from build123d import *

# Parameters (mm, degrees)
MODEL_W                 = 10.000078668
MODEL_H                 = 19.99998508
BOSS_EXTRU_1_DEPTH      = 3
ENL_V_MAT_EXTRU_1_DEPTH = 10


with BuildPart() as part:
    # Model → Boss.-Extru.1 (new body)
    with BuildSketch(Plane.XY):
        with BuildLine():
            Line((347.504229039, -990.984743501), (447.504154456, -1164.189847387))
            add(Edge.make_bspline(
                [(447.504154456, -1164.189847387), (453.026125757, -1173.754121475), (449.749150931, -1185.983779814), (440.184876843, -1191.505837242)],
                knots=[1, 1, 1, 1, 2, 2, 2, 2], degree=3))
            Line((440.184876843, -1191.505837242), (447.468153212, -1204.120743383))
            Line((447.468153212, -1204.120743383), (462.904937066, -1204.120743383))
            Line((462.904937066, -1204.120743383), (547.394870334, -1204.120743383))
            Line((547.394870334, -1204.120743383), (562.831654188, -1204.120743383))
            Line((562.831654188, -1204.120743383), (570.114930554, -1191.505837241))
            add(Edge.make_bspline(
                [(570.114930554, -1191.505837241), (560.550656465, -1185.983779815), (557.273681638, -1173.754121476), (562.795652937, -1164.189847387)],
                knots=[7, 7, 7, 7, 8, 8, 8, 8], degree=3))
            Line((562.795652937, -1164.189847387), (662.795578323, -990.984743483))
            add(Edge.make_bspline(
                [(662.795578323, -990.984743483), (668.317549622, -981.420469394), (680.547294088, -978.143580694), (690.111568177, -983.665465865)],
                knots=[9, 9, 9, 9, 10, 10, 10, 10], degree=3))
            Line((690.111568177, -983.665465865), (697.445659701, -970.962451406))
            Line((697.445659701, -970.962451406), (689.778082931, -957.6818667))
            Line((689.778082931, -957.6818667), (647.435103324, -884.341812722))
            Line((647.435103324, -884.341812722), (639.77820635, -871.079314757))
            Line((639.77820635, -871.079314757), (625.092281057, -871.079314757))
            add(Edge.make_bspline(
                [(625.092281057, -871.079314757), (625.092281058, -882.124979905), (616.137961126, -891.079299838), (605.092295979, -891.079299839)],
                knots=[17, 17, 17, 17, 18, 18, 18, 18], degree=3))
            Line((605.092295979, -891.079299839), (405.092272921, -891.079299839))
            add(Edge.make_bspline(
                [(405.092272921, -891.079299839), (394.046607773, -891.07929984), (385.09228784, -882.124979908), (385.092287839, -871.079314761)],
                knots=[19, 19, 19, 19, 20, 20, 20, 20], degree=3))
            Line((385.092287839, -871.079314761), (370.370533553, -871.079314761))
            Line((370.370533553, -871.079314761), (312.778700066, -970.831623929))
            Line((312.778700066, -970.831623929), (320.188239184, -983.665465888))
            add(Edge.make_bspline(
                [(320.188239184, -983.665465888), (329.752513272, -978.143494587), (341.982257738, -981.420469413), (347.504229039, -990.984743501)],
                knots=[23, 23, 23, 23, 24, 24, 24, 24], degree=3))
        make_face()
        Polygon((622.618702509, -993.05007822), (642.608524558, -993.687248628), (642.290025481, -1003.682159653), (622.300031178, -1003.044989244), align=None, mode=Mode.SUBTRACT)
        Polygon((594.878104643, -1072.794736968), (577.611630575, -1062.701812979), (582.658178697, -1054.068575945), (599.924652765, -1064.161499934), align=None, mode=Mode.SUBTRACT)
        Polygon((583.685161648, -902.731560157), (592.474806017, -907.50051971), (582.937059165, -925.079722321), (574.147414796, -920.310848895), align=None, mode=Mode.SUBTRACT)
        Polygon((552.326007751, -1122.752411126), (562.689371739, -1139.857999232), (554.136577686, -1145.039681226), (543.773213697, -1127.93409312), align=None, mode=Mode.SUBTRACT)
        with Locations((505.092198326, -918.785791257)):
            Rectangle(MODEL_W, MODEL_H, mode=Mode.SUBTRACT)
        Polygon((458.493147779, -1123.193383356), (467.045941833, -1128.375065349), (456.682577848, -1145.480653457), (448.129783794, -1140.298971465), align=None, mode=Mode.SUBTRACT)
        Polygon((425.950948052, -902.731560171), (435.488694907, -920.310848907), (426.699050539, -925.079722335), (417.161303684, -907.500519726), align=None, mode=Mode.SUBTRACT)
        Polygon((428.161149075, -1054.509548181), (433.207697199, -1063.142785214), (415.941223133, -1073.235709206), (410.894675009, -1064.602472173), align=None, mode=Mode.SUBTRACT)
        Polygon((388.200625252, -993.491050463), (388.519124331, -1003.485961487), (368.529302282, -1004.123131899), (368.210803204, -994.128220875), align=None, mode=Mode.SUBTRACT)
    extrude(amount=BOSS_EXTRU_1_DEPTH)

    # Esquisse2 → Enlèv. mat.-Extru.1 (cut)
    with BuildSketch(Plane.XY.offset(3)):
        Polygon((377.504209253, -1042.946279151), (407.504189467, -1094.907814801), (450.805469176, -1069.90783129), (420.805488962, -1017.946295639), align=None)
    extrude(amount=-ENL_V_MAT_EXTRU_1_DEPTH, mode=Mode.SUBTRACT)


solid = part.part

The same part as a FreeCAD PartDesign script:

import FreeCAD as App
import Part
import Sketcher

V = App.Vector
Q = App.Units.Quantity

doc = App.newDocument("Part")
body = doc.addObject("PartDesign::Body", "Body")

# Sketch on XY plane
sketch1 = body.newObject("Sketcher::SketchObject", "Sketch")
sketch1.AttachmentSupport = (doc.getObject("XY_Plane"), [""])
sketch1.MapMode = "FlatFace"
sketch1.addGeometry([
    Part.LineSegment(V(347.504229, -990.984744, 0), V(447.504154, -1164.189847, 0)),  # 0
    Part.BSplineCurve([V(447.504154, -1164.189847, 0), V(453.026126, -1173.754121, 0), V(449.749151, -1185.98378, 0), V(440.184877, -1191.505837, 0)], [4, 4], [1, 2], False, 3, [1, 1, 1, 1], False),  # 1
    Part.LineSegment(V(440.184877, -1191.505837, 0), V(447.468153, -1204.120743, 0)),  # 2
    Part.LineSegment(V(447.468153, -1204.120743, 0), V(562.831654, -1204.120743, 0)),  # 3
    Part.LineSegment(V(562.831654, -1204.120743, 0), V(570.114931, -1191.505837, 0)),  # 4
    Part.BSplineCurve([V(570.114931, -1191.505837, 0), V(560.550656, -1185.98378, 0), V(557.273682, -1173.754121, 0), V(562.795653, -1164.189847, 0)], [4, 4], [7, 8], False, 3, [1, 1, 1, 1], False),  # 5
    Part.LineSegment(V(562.795653, -1164.189847, 0), V(662.795578, -990.984743, 0)),  # 6
    Part.BSplineCurve([V(662.795578, -990.984743, 0), V(668.31755, -981.420469, 0), V(680.547294, -978.143581, 0), V(690.111568, -983.665466, 0)], [4, 4], [9, 10], False, 3, [1, 1, 1, 1], False),  # 7
    Part.LineSegment(V(690.111568, -983.665466, 0), V(697.44566, -970.962451, 0)),  # 8
    Part.LineSegment(V(697.44566, -970.962451, 0), V(689.778083, -957.681867, 0)),  # 9
    Part.LineSegment(V(689.778083, -957.681867, 0), V(647.435103, -884.341813, 0)),  # 10
    Part.LineSegment(V(647.435103, -884.341813, 0), V(639.778206, -871.079315, 0)),  # 11
    Part.LineSegment(V(639.778206, -871.079315, 0), V(625.092281, -871.079315, 0)),  # 12
    Part.BSplineCurve([V(625.092281, -871.079315, 0), V(625.092281, -882.12498, 0), V(616.137961, -891.0793, 0), V(605.092296, -891.0793, 0)], [4, 4], [17, 18], False, 3, [1, 1, 1, 1], False),  # 13
    Part.LineSegment(V(605.092296, -891.0793, 0), V(405.092273, -891.0793, 0)),  # 14
    Part.BSplineCurve([V(405.092273, -891.0793, 0), V(394.046608, -891.0793, 0), V(385.092288, -882.12498, 0), V(385.092288, -871.079315, 0)], [4, 4], [19, 20], False, 3, [1, 1, 1, 1], False),  # 15
    Part.LineSegment(V(385.092288, -871.079315, 0), V(370.370534, -871.079315, 0)),  # 16
    Part.LineSegment(V(370.370534, -871.079315, 0), V(312.7787, -970.831624, 0)),  # 17
    Part.LineSegment(V(312.7787, -970.831624, 0), V(320.188239, -983.665466, 0)),  # 18
    Part.BSplineCurve([V(320.188239, -983.665466, 0), V(329.752513, -978.143495, 0), V(341.982258, -981.420469, 0), V(347.504229, -990.984744, 0)], [4, 4], [23, 24], False, 3, [1, 1, 1, 1], False),  # 19
    Part.LineSegment(V(448.129784, -1140.298971, 0), V(458.493148, -1123.193383, 0)),  # 20
    Part.LineSegment(V(458.493148, -1123.193383, 0), V(467.045942, -1128.375065, 0)),  # 21
    Part.LineSegment(V(467.045942, -1128.375065, 0), V(456.682578, -1145.480653, 0)),  # 22
    Part.LineSegment(V(456.682578, -1145.480653, 0), V(448.129784, -1140.298971, 0)),  # 23
    Part.LineSegment(V(410.894675, -1064.602472, 0), V(428.161149, -1054.509548, 0)),  # 24
    Part.LineSegment(V(428.161149, -1054.509548, 0), V(433.207697, -1063.142785, 0)),  # 25
    Part.LineSegment(V(433.207697, -1063.142785, 0), V(415.941223, -1073.235709, 0)),  # 26
    Part.LineSegment(V(415.941223, -1073.235709, 0), V(410.894675, -1064.602472, 0)),  # 27
    Part.LineSegment(V(543.773214, -1127.934093, 0), V(552.326008, -1122.752411, 0)),  # 28
    Part.LineSegment(V(552.326008, -1122.752411, 0), V(562.689372, -1139.857999, 0)),  # 29
    Part.LineSegment(V(562.689372, -1139.857999, 0), V(554.136578, -1145.039681, 0)),  # 30
    Part.LineSegment(V(554.136578, -1145.039681, 0), V(543.773214, -1127.934093, 0)),  # 31
    Part.LineSegment(V(599.924653, -1064.1615, 0), V(594.878105, -1072.794737, 0)),  # 32
    Part.LineSegment(V(594.878105, -1072.794737, 0), V(577.611631, -1062.701813, 0)),  # 33
    Part.LineSegment(V(577.611631, -1062.701813, 0), V(582.658179, -1054.068576, 0)),  # 34
    Part.LineSegment(V(582.658179, -1054.068576, 0), V(599.924653, -1064.1615, 0)),  # 35
    Part.LineSegment(V(368.210803, -994.128221, 0), V(388.200625, -993.49105, 0)),  # 36
    Part.LineSegment(V(388.200625, -993.49105, 0), V(388.519124, -1003.485961, 0)),  # 37
    Part.LineSegment(V(388.519124, -1003.485961, 0), V(368.529302, -1004.123132, 0)),  # 38
    Part.LineSegment(V(368.529302, -1004.123132, 0), V(368.210803, -994.128221, 0)),  # 39
    Part.LineSegment(V(417.161304, -907.50052, 0), V(425.950948, -902.73156, 0)),  # 40
    Part.LineSegment(V(425.950948, -902.73156, 0), V(435.488695, -920.310849, 0)),  # 41
    Part.LineSegment(V(435.488695, -920.310849, 0), V(426.699051, -925.079722, 0)),  # 42
    Part.LineSegment(V(426.699051, -925.079722, 0), V(417.161304, -907.50052, 0)),  # 43
    Part.LineSegment(V(510.092238, -928.785784, 0), V(500.092159, -928.785784, 0)),  # 44
    Part.LineSegment(V(500.092159, -928.785784, 0), V(500.092159, -908.785799, 0)),  # 45
    Part.LineSegment(V(500.092159, -908.785799, 0), V(510.092238, -908.785799, 0)),  # 46
    Part.LineSegment(V(510.092238, -908.785799, 0), V(510.092238, -928.785784, 0)),  # 47
    Part.LineSegment(V(622.300031, -1003.044989, 0), V(622.618703, -993.050078, 0)),  # 48
    Part.LineSegment(V(622.618703, -993.050078, 0), V(642.608525, -993.687249, 0)),  # 49
    Part.LineSegment(V(642.608525, -993.687249, 0), V(642.290025, -1003.68216, 0)),  # 50
    Part.LineSegment(V(642.290025, -1003.68216, 0), V(622.300031, -1003.044989, 0)),  # 51
    Part.LineSegment(V(574.147415, -920.310849, 0), V(583.685162, -902.73156, 0)),  # 52
    Part.LineSegment(V(583.685162, -902.73156, 0), V(592.474806, -907.50052, 0)),  # 53
    Part.LineSegment(V(592.474806, -907.50052, 0), V(582.937059, -925.079722, 0)),  # 54
    Part.LineSegment(V(582.937059, -925.079722, 0), V(574.147415, -920.310849, 0)),  # 55
], False)
sketch1.addConstraint([
    Sketcher.Constraint("Block", 1),
    Sketcher.Constraint("Block", 5),
    Sketcher.Constraint("Block", 7),
    Sketcher.Constraint("Block", 13),
    Sketcher.Constraint("Block", 15),
    Sketcher.Constraint("Block", 19),
    Sketcher.Constraint("Coincident", 0, 2, 1, 1),
    Sketcher.Constraint("Coincident", 1, 2, 2, 1),
    Sketcher.Constraint("Coincident", 2, 2, 3, 1),
    Sketcher.Constraint("Coincident", 3, 2, 4, 1),
    Sketcher.Constraint("Coincident", 4, 2, 5, 1),
    Sketcher.Constraint("Coincident", 5, 2, 6, 1),
    Sketcher.Constraint("Coincident", 6, 2, 7, 1),
    Sketcher.Constraint("Coincident", 7, 2, 8, 1),
    Sketcher.Constraint("Coincident", 8, 2, 9, 1),
    Sketcher.Constraint("Coincident", 9, 2, 10, 1),
    Sketcher.Constraint("Coincident", 10, 2, 11, 1),
    Sketcher.Constraint("Coincident", 11, 2, 12, 1),
    Sketcher.Constraint("Coincident", 12, 2, 13, 1),
    Sketcher.Constraint("Coincident", 13, 2, 14, 1),
    Sketcher.Constraint("Coincident", 14, 2, 15, 1),
    Sketcher.Constraint("Coincident", 15, 2, 16, 1),
    Sketcher.Constraint("Coincident", 16, 2, 17, 1),
    Sketcher.Constraint("Coincident", 17, 2, 18, 1),
    Sketcher.Constraint("Coincident", 18, 2, 19, 1),
    Sketcher.Constraint("Coincident", 19, 2, 0, 1),
    Sketcher.Constraint("Coincident", 20, 2, 21, 1),
    Sketcher.Constraint("Coincident", 21, 2, 22, 1),
    Sketcher.Constraint("Coincident", 22, 2, 23, 1),
    Sketcher.Constraint("Coincident", 23, 2, 20, 1),
    Sketcher.Constraint("Coincident", 24, 2, 25, 1),
    Sketcher.Constraint("Coincident", 25, 2, 26, 1),
    Sketcher.Constraint("Coincident", 26, 2, 27, 1),
    Sketcher.Constraint("Coincident", 27, 2, 24, 1),
    Sketcher.Constraint("Coincident", 28, 2, 29, 1),
    Sketcher.Constraint("Coincident", 29, 2, 30, 1),
    Sketcher.Constraint("Coincident", 30, 2, 31, 1),
    Sketcher.Constraint("Coincident", 31, 2, 28, 1),
    Sketcher.Constraint("Coincident", 32, 2, 33, 1),
    Sketcher.Constraint("Coincident", 33, 2, 34, 1),
    Sketcher.Constraint("Coincident", 34, 2, 35, 1),
    Sketcher.Constraint("Coincident", 35, 2, 32, 1),
    Sketcher.Constraint("Coincident", 36, 2, 37, 1),
    Sketcher.Constraint("Coincident", 37, 2, 38, 1),
    Sketcher.Constraint("Coincident", 38, 2, 39, 1),
    Sketcher.Constraint("Coincident", 39, 2, 36, 1),
    Sketcher.Constraint("Coincident", 40, 2, 41, 1),
    Sketcher.Constraint("Coincident", 41, 2, 42, 1),
    Sketcher.Constraint("Coincident", 42, 2, 43, 1),
    Sketcher.Constraint("Coincident", 43, 2, 40, 1),
    Sketcher.Constraint("Coincident", 44, 2, 45, 1),
    Sketcher.Constraint("Coincident", 45, 2, 46, 1),
    Sketcher.Constraint("Coincident", 46, 2, 47, 1),
    Sketcher.Constraint("Coincident", 47, 2, 44, 1),
    Sketcher.Constraint("Coincident", 48, 2, 49, 1),
    Sketcher.Constraint("Coincident", 49, 2, 50, 1),
    Sketcher.Constraint("Coincident", 50, 2, 51, 1),
    Sketcher.Constraint("Coincident", 51, 2, 48, 1),
    Sketcher.Constraint("Coincident", 52, 2, 53, 1),
    Sketcher.Constraint("Coincident", 53, 2, 54, 1),
    Sketcher.Constraint("Coincident", 54, 2, 55, 1),
    Sketcher.Constraint("Coincident", 55, 2, 52, 1),
    Sketcher.Constraint("Horizontal", 3),
    Sketcher.Constraint("Horizontal", 12),
    Sketcher.Constraint("Horizontal", 16),
    Sketcher.Constraint("Horizontal", 44),
    Sketcher.Constraint("Vertical", 45),
    Sketcher.Constraint("Horizontal", 46),
    Sketcher.Constraint("Vertical", 47),
    Sketcher.Constraint("Distance", 41, Q("20 mm")),
    Sketcher.Constraint("Distance", 42, Q("10 mm")),
    Sketcher.Constraint("Distance", 52, Q("20 mm")),
    Sketcher.Constraint("Distance", 55, Q("10 mm")),
    Sketcher.Constraint("DistanceX", 3, 1, 3, 2, Q("115.363501 mm")),
    Sketcher.Constraint("DistanceY", 29, 2, -1, 1, Q("1139.857999 mm")),
    Sketcher.Constraint("DistanceX", 2, 2, 0, 2, Q("0.036001 mm")),
    Sketcher.Constraint("DistanceY", 3, 2, 6, 2, Q("213.136 mm")),
    Sketcher.Constraint("DistanceX", 24, 2, 20, 2, Q("30.331999 mm")),
    Sketcher.Constraint("DistanceX", 44, 2, 44, 1, Q("10.000079 mm")),
    Sketcher.Constraint("DistanceX", -1, 1, 17, 2, Q("312.7787 mm")),
    Sketcher.Constraint("DistanceY", 35, 2, -1, 1, Q("1064.1615 mm")),
    Sketcher.Constraint("DistanceY", 45, 2, -1, 1, Q("908.785799 mm")),
    Sketcher.Constraint("DistanceX", 12, 2, 9, 2, Q("64.685802 mm")),
    Sketcher.Constraint("DistanceY", 0, 2, 24, 2, Q("109.680299 mm")),
    Sketcher.Constraint("DistanceY", 20, 2, 25, 2, Q("60.050598 mm")),
    Sketcher.Constraint("DistanceY", 23, 2, 27, 2, Q("75.696499 mm")),
    Sketcher.Constraint("DistanceY", 28, 2, 33, 2, Q("60.050598 mm")),
    Sketcher.Constraint("DistanceX", 36, 2, 37, 2, Q("0.318499 mm")),
    Sketcher.Constraint("DistanceX", 39, 2, 38, 2, Q("0.318499 mm")),
    Sketcher.Constraint("DistanceY", 37, 2, 40, 2, Q("100.754401 mm")),
    Sketcher.Constraint("DistanceY", 36, 2, 41, 2, Q("73.180202 mm")),
    Sketcher.Constraint("DistanceX", 50, 2, 49, 2, Q("0.318499 mm")),
    Sketcher.Constraint("DistanceX", 53, 2, 11, 2, Q("47.3034 mm")),
    Sketcher.Constraint("Distance", 8, Q("14.668179 mm")),
    Sketcher.Constraint("Distance", 10, Q("84.68584 mm")),
    Sketcher.Constraint("Distance", 11, Q("15.314109 mm")),
    Sketcher.Constraint("Distance", 17, Q("115.183951 mm")),
    Sketcher.Constraint("Distance", 20, Q("20.000011 mm")),
    Sketcher.Constraint("Distance", 22, Q("20.000011 mm")),
    Sketcher.Constraint("Distance", 25, Q("10.000021 mm")),
    Sketcher.Constraint("Distance", 27, Q("10.000021 mm")),
    Sketcher.Constraint("Distance", 29, Q("20.000011 mm")),
    Sketcher.Constraint("Distance", 31, Q("20.000011 mm")),
    Sketcher.Constraint("Distance", 32, Q("10.000021 mm")),
    Sketcher.Constraint("Distance", 34, Q("10.000021 mm")),
    Sketcher.Constraint("Distance", 40, Q("10.000041 mm")),
    Sketcher.Constraint("Distance", 48, Q("9.99999 mm")),
    Sketcher.Constraint("Distance", 53, Q("10.000041 mm")),
    Sketcher.Constraint("DistanceX", 12, 2, 12, 1, Q("14.685925 mm")),
    Sketcher.Constraint("DistanceX", 16, 2, 16, 1, Q("14.721754 mm")),
    Sketcher.Constraint("DistanceY", 45, 1, 45, 2, Q("19.999985 mm")),
    Sketcher.Constraint("DistanceX", -1, 1, 8, 2, Q("697.44566 mm")),
    Sketcher.Constraint("DistanceX", -1, 1, 21, 2, Q("467.045942 mm")),
    Sketcher.Constraint("DistanceY", 23, 2, -1, 1, Q("1140.298971 mm")),
    Sketcher.Constraint("DistanceX", -1, 1, 24, 2, Q("428.161149 mm")),
    Sketcher.Constraint("DistanceY", 26, 2, -1, 1, Q("1073.235709 mm")),
    Sketcher.Constraint("DistanceY", 28, 2, -1, 1, Q("1122.752411 mm")),
    Sketcher.Constraint("DistanceX", -1, 1, 29, 2, Q("562.689372 mm")),
    Sketcher.Constraint("DistanceY", 30, 2, -1, 1, Q("1145.039681 mm")),
    Sketcher.Constraint("DistanceX", -1, 1, 33, 2, Q("577.611631 mm")),
    Sketcher.Constraint("DistanceX", -1, 1, 34, 2, Q("582.658179 mm")),
    Sketcher.Constraint("DistanceY", 36, 2, -1, 1, Q("993.49105 mm")),
    Sketcher.Constraint("DistanceY", 37, 2, -1, 1, Q("1003.485961 mm")),
    Sketcher.Constraint("DistanceY", 38, 2, -1, 1, Q("1004.123132 mm")),
    Sketcher.Constraint("DistanceY", 39, 2, -1, 1, Q("994.128221 mm")),
    Sketcher.Constraint("DistanceX", -1, 1, 40, 2, Q("425.950948 mm")),
    Sketcher.Constraint("DistanceX", -1, 1, 42, 2, Q("426.699051 mm")),
    Sketcher.Constraint("DistanceY", 43, 2, -1, 1, Q("907.50052 mm")),
    Sketcher.Constraint("DistanceX", -1, 1, 44, 2, Q("500.092159 mm")),
    Sketcher.Constraint("DistanceY", 48, 2, -1, 1, Q("993.050078 mm")),
    Sketcher.Constraint("DistanceY", 49, 2, -1, 1, Q("993.687249 mm")),
    Sketcher.Constraint("DistanceY", 50, 2, -1, 1, Q("1003.68216 mm")),
    Sketcher.Constraint("DistanceX", -1, 1, 51, 2, Q("622.300031 mm")),
    Sketcher.Constraint("DistanceY", 51, 2, -1, 1, Q("1003.044989 mm")),
    Sketcher.Constraint("DistanceX", -1, 1, 52, 2, Q("583.685162 mm")),
    Sketcher.Constraint("DistanceY", 52, 2, -1, 1, Q("902.73156 mm")),
    Sketcher.Constraint("DistanceX", -1, 1, 54, 2, Q("582.937059 mm")),
    Sketcher.Constraint("DistanceY", 55, 2, -1, 1, Q("920.310849 mm")),
    Sketcher.Constraint("DistanceX", 10, 2, 9, 2, Q("42.34298 mm")),
    Sketcher.Constraint("DistanceY", 2, 2, 20, 2, Q("80.92736 mm")),
    Sketcher.Constraint("DistanceY", 21, 2, 20, 2, Q("5.181682 mm")),
    Sketcher.Constraint("DistanceY", 22, 2, 21, 2, Q("17.105588 mm")),
    Sketcher.Constraint("DistanceX", 26, 2, 23, 2, Q("32.188561 mm")),
    Sketcher.Constraint("DistanceX", 28, 2, 30, 2, Q("1.81057 mm")),
    Sketcher.Constraint("DistanceY", 31, 2, 28, 2, Q("5.181682 mm")),
    Sketcher.Constraint("DistanceX", 31, 2, 32, 2, Q("51.104891 mm")),
    Sketcher.Constraint("DistanceY", 32, 2, 34, 2, Q("18.726161 mm")),
    Sketcher.Constraint("DistanceX", 36, 2, 27, 2, Q("22.69405 mm")),
    Sketcher.Constraint("DistanceX", 39, 2, 37, 2, Q("20.308321 mm")),
    Sketcher.Constraint("DistanceX", 49, 2, 9, 2, Q("47.169558 mm")),
])
pad1 = body.newObject("PartDesign::Pad", "Pad")
pad1.Profile = sketch1
pad1.Length = 3

# Sketch on XY plane
sketch2 = body.newObject("Sketcher::SketchObject", "Sketch001")
sketch2.AttachmentSupport = (doc.getObject("XY_Plane"), [""])
sketch2.MapMode = "FlatFace"
sketch2.AttachmentOffset = App.Placement(V(0, 0, 3), App.Rotation())
sketch2.addGeometry([
    Part.LineSegment(V(378, -1043, 0), V(408, -1095, 0)),
    Part.LineSegment(V(408, -1095, 0), V(451, -1070, 0)),
    Part.LineSegment(V(451, -1070, 0), V(421, -1018, 0)),
    Part.LineSegment(V(421, -1018, 0), V(378, -1043, 0)),
], False)
sketch2.addConstraint([
    Sketcher.Constraint("Coincident", 0, 2, 1, 1),
    Sketcher.Constraint("Coincident", 1, 2, 2, 1),
    Sketcher.Constraint("Coincident", 2, 2, 3, 1),
    Sketcher.Constraint("Coincident", 3, 2, 0, 1),
    Sketcher.Constraint("Perpendicular", 0, 1),
    Sketcher.Constraint("Perpendicular", 1, 2),
    Sketcher.Constraint("Perpendicular", 2, 3),
    Sketcher.Constraint("Distance", 0, Q("60 mm")),
    Sketcher.Constraint("Distance", 1, Q("50 mm")),
    Sketcher.Constraint("DistanceX", 0, 2, 2, 2, Q("13.301299 mm")),
    Sketcher.Constraint("DistanceX", -1, 1, 0, 2, Q("407.504189 mm")),
    Sketcher.Constraint("DistanceY", 1, 2, -1, 1, Q("1069.907831 mm")),
])
pocket1 = body.newObject("PartDesign::Pocket", "Pocket")
pocket1.Profile = sketch2
pocket1.Length = 10

doc.recompute()
